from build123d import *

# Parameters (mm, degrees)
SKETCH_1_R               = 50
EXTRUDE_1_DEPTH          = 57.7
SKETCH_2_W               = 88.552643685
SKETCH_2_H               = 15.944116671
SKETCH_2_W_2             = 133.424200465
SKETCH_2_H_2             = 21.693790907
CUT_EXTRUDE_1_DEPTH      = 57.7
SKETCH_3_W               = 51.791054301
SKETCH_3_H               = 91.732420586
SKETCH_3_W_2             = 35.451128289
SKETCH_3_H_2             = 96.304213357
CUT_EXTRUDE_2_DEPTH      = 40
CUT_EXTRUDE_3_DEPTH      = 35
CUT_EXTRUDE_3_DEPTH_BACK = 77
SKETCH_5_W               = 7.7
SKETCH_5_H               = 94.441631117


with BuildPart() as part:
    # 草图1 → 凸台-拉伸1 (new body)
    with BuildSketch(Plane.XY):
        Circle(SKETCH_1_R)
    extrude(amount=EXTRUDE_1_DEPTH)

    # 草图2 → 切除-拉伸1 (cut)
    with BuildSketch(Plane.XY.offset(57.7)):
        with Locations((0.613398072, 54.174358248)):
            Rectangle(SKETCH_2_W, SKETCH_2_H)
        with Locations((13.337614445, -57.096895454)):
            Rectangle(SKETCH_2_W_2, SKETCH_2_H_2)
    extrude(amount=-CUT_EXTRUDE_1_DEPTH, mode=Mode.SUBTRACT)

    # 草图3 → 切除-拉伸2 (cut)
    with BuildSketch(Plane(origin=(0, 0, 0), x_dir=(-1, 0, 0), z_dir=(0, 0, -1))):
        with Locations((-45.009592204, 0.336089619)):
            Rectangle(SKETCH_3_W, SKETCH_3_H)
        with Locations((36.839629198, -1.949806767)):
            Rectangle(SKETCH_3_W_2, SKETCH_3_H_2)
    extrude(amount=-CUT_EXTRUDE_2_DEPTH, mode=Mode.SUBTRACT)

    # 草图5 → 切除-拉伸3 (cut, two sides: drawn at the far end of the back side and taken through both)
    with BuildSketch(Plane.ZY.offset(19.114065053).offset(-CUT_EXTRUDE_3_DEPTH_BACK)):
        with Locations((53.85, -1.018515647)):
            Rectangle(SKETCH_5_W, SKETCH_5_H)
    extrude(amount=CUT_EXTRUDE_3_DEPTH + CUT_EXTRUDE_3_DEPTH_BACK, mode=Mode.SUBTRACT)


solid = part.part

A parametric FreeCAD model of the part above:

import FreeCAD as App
import Part
import Sketcher
from FreeCAD import Vector


def add_polygon(sketch, points):
    """Adds a closed chain of lines whose ends are joined by coincident constraints."""
    first, n = sketch.GeometryCount, len(points)
    for a, b in zip(points, points[1:] + points[:1]):
        sketch.addGeometry(Part.LineSegment(App.Vector(*a, 0), App.Vector(*b, 0)), False)
    for i in range(n):
        sketch.addConstraint(Sketcher.Constraint("Coincident", first + i, 2, first + (i + 1) % n, 1))

doc = App.newDocument("Part")
body = doc.addObject("PartDesign::Body", "Body")

# Sketch on XY plane
sketch1 = body.newObject("Sketcher::SketchObject", "Sketch")
sketch1.AttachmentSupport = (doc.getObject("XY_Plane"), [""])
sketch1.MapMode = "FlatFace"
sketch1.addGeometry(Part.Circle(Vector(0, 0, 0), Vector(0, 0, 1), 50), False)
sketch1.addConstraint([
    Sketcher.Constraint("Coincident", 0, 3, -1, 1),
    Sketcher.Constraint("Diameter", 0, 100.0),
])
pad1 = body.newObject("PartDesign::Pad", "Pad")
pad1.Profile = sketch1
pad1.Length = 57.7

# Sketch on XY plane
sketch2 = body.newObject("Sketcher::SketchObject", "Sketch001")
sketch2.AttachmentSupport = (doc.getObject("XY_Plane"), [""])
sketch2.MapMode = "FlatFace"
sketch2.AttachmentOffset = App.Placement(Vector(0, 0, 57.7), App.Rotation())
add_polygon(sketch2, [(-43.662924, 62.146417), (-43.662924, 46.2023), (44.88972, 46.2023), (44.88972, 62.146417)])  # lines 0-3
add_polygon(sketch2, [(-53.374486, -46.25), (-53.374486, -67.943791), (80.049715, -67.943791), (80.049715, -46.25)])  # lines 4-7
sketch2.addConstraint([
    Sketcher.Constraint("Vertical", 0),
    Sketcher.Constraint("Horizontal", 1),
    Sketcher.Constraint("Vertical", 2),
    Sketcher.Constraint("Horizontal", 3),
    Sketcher.Constraint("Vertical", 4),
    Sketcher.Constraint("Horizontal", 5),
    Sketcher.Constraint("Vertical", 6),
    Sketcher.Constraint("Horizontal", 7),
    Sketcher.Constraint("DistanceY", 6, 2, -1, 1, 46.25),
    Sketcher.Constraint("DistanceX", 5, 1, 5, 2, 133.4242),
    Sketcher.Constraint("DistanceY", 4, 2, 4, 1, 21.693791),
    Sketcher.Constraint("DistanceY", -1, 1, 0, 2, 46.2023),
    Sketcher.Constraint("DistanceX", 1, 1, 1, 2, 88.552644),
    Sketcher.Constraint("DistanceY", 0, 2, 0, 1, 15.944117),
    Sketcher.Constraint("DistanceX", -1, 1, 1, 2, 44.88972),
    Sketcher.Constraint("DistanceX", 0, 2, 5, 2, 123.712638),
])
pocket1 = body.newObject("PartDesign::Pocket", "Pocket")
pocket1.Profile = sketch2
pocket1.Length = 57.7

# Sketch on XY plane
sketch3 = body.newObject("Sketcher::SketchObject", "Sketch002")
sketch3.AttachmentSupport = (doc.getObject("XY_Plane"), [""])
sketch3.MapMode = "FlatFace"
add_polygon(sketch3, [(70.905119, 46.2023), (70.905119, -45.530121), (19.114065, -45.530121), (19.114065, 46.2023)])  # lines 0-3
add_polygon(sketch3, [(-19.114065, 46.2023), (-19.114065, -50.101913), (-54.565193, -50.101913), (-54.565193, 46.2023)])  # lines 4-7
sketch3.addConstraint([
    Sketcher.Constraint("Vertical", 0),
    Sketcher.Constraint("Horizontal", 1),
    Sketcher.Constraint("Vertical", 2),
    Sketcher.Constraint("Horizontal", 3),
    Sketcher.Constraint("Vertical", 4),
    Sketcher.Constraint("Horizontal", 5),
    Sketcher.Constraint("Vertical", 6),
    Sketcher.Constraint("Horizontal", 7),
    Sketcher.Constraint("Symmetric", 2, 2, 7, 2, -2),
    Sketcher.Constraint("DistanceX", 5, 2, 5, 1, 35.451128),
    Sketcher.Constraint("DistanceY", 0, 2, 0, 1, 91.732421),
    Sketcher.Constraint("DistanceY", -1, 1, 2, 2, 46.2023),
    Sketcher.Constraint("DistanceX", 1, 2, 1, 1, 51.791054),
    Sketcher.Constraint("DistanceY", 4, 2, 4, 1, 96.304213),
    Sketcher.Constraint("DistanceX", -1, 1, 0, 2, 70.905119),
])
pocket2 = body.newObject("PartDesign::Pocket", "Pocket001")
pocket2.Profile = sketch3
pocket2.Length = 40
pocket2.Reversed = True

# Sketch on YZ plane
sketch4 = body.newObject("Sketcher::SketchObject", "Sketch003")
sketch4.AttachmentSupport = (doc.getObject("YZ_Plane"), [""])
sketch4.MapMode = "FlatFace"
sketch4.AttachmentOffset = App.Placement(Vector(0, 0, -19.114065), App.Rotation())
add_polygon(sketch4, [(46.2023, 50), (-48.239331, 50), (-48.239331, 57.7), (46.2023, 57.7)])  # lines 0-3
sketch4.addConstraint([
    Sketcher.Constraint("Horizontal", 0),
    Sketcher.Constraint("Vertical", 1),
    Sketcher.Constraint("Horizontal", 2),
    Sketcher.Constraint("Vertical", 3),
    Sketcher.Constraint("DistanceY", 1, 1, 1, 2, 7.7),
    Sketcher.Constraint("DistanceY", -1, 1, 0, 2, 50.0),
    Sketcher.Constraint("DistanceX", 0, 2, 0, 1, 94.441631),
    Sketcher.Constraint("DistanceX", -1, 1, 2, 2, 46.2023),
])
pocket3 = body.newObject("PartDesign::Pocket", "Pocket002")
pocket3.Profile = sketch4
pocket3.Type = "ThroughAll"
pocket3.Midplane = True

doc.recompute()
